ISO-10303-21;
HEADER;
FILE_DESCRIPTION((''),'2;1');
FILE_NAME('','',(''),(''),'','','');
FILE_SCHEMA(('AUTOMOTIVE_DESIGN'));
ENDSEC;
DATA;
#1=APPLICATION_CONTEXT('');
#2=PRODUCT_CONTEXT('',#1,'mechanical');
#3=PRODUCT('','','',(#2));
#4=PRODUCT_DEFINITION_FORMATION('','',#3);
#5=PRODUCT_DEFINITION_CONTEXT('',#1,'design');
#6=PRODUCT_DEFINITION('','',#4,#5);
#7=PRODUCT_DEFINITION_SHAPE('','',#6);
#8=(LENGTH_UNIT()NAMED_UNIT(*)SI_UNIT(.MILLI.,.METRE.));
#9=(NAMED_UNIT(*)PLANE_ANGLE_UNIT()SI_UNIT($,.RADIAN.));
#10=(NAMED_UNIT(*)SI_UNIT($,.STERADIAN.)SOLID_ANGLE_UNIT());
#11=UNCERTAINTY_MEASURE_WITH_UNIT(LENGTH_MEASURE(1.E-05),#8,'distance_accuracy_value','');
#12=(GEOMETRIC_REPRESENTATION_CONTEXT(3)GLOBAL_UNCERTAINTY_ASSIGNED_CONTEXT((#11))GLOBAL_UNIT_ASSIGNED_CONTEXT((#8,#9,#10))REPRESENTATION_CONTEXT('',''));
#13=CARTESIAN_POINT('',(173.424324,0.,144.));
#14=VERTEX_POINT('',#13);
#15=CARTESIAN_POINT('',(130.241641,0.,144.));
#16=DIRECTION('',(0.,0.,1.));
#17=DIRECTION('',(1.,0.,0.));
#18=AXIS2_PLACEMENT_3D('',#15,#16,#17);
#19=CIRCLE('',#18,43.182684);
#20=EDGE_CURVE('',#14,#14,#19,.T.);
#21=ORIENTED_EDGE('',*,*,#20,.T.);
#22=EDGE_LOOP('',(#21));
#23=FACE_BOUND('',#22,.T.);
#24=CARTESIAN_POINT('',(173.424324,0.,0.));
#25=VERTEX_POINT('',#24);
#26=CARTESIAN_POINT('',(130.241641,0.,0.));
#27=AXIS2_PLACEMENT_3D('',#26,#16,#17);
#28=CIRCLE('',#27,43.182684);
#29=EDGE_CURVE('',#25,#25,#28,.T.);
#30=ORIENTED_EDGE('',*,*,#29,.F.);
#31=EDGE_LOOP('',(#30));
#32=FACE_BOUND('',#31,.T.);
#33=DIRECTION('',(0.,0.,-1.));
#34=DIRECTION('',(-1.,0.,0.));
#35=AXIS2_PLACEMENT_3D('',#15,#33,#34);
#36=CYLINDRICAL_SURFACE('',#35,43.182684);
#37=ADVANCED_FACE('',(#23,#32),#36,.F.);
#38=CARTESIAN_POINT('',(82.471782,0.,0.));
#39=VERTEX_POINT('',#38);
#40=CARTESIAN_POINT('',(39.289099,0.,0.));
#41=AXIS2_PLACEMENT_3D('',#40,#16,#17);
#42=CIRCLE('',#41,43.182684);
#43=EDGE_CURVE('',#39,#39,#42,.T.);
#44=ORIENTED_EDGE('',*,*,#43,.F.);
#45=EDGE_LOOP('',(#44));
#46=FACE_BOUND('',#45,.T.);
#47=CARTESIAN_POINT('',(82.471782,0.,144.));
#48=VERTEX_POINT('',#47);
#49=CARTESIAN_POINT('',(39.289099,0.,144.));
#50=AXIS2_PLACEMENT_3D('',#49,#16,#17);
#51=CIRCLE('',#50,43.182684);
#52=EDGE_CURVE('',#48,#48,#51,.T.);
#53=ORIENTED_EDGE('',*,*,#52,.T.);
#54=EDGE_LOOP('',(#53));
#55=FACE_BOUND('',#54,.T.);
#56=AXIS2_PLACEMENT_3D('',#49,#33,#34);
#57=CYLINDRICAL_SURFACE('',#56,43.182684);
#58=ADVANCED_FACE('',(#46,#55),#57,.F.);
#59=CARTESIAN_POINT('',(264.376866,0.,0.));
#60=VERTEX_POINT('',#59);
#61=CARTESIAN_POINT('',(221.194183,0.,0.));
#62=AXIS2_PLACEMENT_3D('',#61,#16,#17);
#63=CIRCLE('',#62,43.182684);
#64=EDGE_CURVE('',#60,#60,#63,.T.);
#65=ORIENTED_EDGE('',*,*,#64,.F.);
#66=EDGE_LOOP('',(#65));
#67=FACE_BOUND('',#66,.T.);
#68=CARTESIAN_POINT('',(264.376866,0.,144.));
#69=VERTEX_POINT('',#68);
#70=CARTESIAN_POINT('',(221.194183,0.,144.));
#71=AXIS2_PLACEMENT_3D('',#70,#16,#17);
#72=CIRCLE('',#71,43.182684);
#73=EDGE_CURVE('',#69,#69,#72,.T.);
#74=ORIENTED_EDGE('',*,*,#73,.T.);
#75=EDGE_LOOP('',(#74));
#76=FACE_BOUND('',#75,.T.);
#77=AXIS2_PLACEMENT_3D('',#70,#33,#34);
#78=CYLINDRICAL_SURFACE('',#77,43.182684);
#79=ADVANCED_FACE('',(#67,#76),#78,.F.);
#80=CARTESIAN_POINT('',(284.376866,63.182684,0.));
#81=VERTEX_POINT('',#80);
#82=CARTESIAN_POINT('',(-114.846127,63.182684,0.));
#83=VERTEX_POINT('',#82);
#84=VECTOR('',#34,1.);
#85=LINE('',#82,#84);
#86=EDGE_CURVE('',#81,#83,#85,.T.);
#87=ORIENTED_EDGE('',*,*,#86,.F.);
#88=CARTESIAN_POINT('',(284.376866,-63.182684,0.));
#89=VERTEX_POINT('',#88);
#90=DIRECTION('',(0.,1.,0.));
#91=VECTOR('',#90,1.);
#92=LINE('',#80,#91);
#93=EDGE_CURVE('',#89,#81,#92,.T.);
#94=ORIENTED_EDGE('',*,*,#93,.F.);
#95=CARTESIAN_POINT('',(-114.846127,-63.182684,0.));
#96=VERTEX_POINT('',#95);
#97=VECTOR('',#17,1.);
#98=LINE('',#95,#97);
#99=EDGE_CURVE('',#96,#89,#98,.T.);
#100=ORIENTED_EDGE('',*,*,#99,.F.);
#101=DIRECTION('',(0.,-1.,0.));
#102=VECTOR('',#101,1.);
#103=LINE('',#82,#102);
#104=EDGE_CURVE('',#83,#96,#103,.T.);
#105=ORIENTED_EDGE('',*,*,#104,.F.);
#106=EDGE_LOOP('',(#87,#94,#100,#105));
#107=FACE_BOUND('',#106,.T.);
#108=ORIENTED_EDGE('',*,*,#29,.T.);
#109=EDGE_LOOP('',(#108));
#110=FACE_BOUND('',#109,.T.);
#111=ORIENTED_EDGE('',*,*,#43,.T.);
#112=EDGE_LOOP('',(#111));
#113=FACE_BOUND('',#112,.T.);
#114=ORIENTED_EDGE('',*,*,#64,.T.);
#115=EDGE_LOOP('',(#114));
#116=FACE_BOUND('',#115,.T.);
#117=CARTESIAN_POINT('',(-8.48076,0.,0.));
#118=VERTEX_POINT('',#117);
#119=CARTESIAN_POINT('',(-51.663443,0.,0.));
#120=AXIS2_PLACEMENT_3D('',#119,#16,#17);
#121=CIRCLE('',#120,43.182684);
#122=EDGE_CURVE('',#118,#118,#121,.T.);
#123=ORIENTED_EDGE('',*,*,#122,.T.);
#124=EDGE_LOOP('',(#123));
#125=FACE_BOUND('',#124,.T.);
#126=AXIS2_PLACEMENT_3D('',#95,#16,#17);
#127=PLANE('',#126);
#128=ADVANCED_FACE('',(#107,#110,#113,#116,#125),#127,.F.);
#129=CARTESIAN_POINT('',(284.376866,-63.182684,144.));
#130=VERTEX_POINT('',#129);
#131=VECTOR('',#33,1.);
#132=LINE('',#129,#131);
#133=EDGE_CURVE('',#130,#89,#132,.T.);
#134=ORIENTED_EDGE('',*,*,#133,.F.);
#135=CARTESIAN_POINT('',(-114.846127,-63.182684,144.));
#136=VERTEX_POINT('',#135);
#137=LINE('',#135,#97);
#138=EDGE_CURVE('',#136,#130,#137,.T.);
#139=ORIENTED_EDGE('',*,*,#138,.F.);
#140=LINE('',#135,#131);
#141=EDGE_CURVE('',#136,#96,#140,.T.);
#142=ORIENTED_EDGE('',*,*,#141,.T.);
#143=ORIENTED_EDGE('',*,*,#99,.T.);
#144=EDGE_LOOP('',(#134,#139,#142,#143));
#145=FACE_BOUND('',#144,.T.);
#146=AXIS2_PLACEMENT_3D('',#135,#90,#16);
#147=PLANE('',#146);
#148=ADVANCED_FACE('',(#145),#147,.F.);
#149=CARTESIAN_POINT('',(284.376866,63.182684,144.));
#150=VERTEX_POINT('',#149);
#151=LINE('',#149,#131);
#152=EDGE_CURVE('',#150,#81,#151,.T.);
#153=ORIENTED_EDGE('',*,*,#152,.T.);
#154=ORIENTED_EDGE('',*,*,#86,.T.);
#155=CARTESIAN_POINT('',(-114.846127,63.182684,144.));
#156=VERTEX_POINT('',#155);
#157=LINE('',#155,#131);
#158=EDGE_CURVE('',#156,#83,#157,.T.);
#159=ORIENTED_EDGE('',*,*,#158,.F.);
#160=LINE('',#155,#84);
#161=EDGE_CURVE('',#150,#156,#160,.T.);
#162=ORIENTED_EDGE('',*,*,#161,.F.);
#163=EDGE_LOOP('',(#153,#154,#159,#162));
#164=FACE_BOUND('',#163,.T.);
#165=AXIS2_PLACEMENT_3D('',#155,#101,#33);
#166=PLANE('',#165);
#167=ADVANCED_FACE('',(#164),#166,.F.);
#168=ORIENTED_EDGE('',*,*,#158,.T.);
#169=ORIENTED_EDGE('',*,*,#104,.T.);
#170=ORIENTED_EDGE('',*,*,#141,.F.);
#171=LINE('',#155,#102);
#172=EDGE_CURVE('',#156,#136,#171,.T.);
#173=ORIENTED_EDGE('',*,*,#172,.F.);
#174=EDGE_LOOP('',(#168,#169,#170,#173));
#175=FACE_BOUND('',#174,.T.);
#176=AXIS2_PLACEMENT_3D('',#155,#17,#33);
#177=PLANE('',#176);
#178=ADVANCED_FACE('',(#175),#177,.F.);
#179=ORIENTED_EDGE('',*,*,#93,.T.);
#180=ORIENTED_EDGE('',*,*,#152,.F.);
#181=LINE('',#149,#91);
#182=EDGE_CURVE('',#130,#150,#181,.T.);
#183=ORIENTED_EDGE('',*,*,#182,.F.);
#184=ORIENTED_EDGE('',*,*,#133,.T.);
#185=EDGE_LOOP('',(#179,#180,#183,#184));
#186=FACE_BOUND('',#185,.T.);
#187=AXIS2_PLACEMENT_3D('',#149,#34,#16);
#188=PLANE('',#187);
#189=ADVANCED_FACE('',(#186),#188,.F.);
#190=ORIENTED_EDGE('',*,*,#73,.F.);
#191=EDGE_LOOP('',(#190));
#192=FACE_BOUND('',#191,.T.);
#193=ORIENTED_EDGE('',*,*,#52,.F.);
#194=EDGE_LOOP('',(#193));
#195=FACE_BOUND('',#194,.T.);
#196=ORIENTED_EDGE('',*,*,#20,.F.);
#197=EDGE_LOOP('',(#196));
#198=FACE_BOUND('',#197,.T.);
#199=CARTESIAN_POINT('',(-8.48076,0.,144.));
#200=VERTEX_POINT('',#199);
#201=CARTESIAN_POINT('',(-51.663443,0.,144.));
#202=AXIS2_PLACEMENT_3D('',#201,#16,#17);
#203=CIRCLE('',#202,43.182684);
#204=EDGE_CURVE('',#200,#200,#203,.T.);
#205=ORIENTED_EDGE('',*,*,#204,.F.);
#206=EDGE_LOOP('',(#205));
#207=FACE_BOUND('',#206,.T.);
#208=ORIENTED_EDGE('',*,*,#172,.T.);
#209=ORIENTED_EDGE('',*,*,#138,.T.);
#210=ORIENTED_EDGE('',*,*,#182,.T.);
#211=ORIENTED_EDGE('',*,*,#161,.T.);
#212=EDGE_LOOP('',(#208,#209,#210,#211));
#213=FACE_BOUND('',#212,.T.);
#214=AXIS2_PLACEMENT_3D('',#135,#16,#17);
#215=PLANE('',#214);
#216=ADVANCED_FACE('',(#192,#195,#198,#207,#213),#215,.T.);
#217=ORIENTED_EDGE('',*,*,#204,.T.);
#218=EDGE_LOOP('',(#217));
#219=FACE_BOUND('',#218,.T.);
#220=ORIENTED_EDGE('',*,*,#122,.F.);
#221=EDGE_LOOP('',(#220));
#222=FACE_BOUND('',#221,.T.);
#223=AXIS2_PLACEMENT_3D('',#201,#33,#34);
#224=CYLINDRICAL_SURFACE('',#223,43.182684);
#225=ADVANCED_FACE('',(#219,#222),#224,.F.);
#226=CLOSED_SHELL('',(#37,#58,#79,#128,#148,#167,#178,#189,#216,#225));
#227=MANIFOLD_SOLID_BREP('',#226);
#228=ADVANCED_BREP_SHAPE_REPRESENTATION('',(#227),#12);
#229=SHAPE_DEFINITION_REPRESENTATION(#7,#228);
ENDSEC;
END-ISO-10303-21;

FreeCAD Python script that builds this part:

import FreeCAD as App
import Part
import Sketcher
from FreeCAD import Vector
Q = App.Units.Quantity

doc = App.newDocument("Part")
params = doc.addObject("Spreadsheet::Sheet", "Params")
for row, (alias, value) in enumerate([
    ("pad1_length", "144 mm"),
], start=1):
    params.set(f"A{row}", alias)
    params.set(f"B{row}", "=" + value)
    params.setAlias(f"B{row}", alias)

body = doc.addObject("PartDesign::Body", "Body")

# Sketch on XY plane
sketch1 = body.newObject("Sketcher::SketchObject", "Sketch")
sketch1.AttachmentSupport = (doc.getObject("XY_Plane"), [""])
sketch1.MapMode = "FlatFace"
sketch1.addGeometry([
    Part.LineSegment(Vector(-115, 63, 0), Vector(-115, -63, 0)),  # 0
    Part.LineSegment(Vector(-115, -63, 0), Vector(284, -63, 0)),  # 1
    Part.LineSegment(Vector(284, -63, 0), Vector(284, 63, 0)),  # 2
    Part.LineSegment(Vector(284, 63, 0), Vector(-115, 63, 0)),  # 3
    Part.Circle(Vector(-52, 0, 0), Vector(0, 0, 1), 43),  # 4
    Part.Circle(Vector(39, 0, 0), Vector(0, 0, 1), 43),  # 5
    Part.Circle(Vector(130, 0, 0), Vector(0, 0, 1), 43),  # 6
    Part.Circle(Vector(221, 0, 0), Vector(0, 0, 1), 43),  # 7
], False)
sketch1.addConstraint([
    Sketcher.Constraint("Coincident", 0, 2, 1, 1),
    Sketcher.Constraint("Coincident", 1, 2, 2, 1),
    Sketcher.Constraint("Coincident", 2, 2, 3, 1),
    Sketcher.Constraint("Coincident", 3, 2, 0, 1),
    Sketcher.Constraint("Vertical", 0),
    Sketcher.Constraint("Horizontal", 1),
    Sketcher.Constraint("Vertical", 2),
    Sketcher.Constraint("Horizontal", 3),
    Sketcher.Constraint("Equal", 4, 5),
    Sketcher.Constraint("Equal", 5, 6),
    Sketcher.Constraint("Equal", 6, 7),
    Sketcher.Constraint("PointOnObject", 4, 3, -1),
    Sketcher.Constraint("PointOnObject", 5, 3, -1),
    Sketcher.Constraint("PointOnObject", 6, 3, -1),
    Sketcher.Constraint("PointOnObject", 7, 3, -1),
    Sketcher.Constraint("Diameter", 4, Q("86.365367 mm")),
    Sketcher.Constraint("DistanceX", -1, 1, 5, 3, Q("39.289099 mm")),
    Sketcher.Constraint("DistanceX", 1, 1, 1, 2, Q("399.222994 mm")),
    Sketcher.Constraint("DistanceY", 0, 2, 0, 1, Q("126.365367 mm")),
    Sketcher.Constraint("DistanceX", -1, 1, 6, 3, Q("130.241641 mm")),
    Sketcher.Constraint("DistanceX", 0, 2, 7, 3, Q("336.04031 mm")),
    Sketcher.Constraint("DistanceX", 4, 3, 1, 2, Q("336.04031 mm")),
    Sketcher.Constraint("DistanceX", 4, 3, -1, 1, Q("51.663443 mm")),
    Sketcher.Constraint("DistanceY", 0, 2, -1, 1, Q("63.182684 mm")),
])
pad1 = body.newObject("PartDesign::Pad", "Pad")
pad1.Profile = sketch1
pad1.setExpression("Length", "Params.pad1_length")

doc.recompute()
